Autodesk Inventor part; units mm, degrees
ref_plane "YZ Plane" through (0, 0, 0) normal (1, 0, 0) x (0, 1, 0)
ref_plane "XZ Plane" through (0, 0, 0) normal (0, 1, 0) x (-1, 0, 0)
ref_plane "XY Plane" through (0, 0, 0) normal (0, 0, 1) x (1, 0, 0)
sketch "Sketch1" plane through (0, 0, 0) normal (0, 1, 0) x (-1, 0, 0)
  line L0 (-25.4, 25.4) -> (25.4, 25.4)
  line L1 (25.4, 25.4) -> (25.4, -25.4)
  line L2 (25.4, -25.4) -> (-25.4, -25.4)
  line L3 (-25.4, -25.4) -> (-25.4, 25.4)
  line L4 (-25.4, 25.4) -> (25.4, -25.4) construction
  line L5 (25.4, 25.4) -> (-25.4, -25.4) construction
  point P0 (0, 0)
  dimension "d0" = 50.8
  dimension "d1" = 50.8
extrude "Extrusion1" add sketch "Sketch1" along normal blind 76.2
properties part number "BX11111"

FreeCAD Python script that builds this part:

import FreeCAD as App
import Part
import Sketcher
from FreeCAD import Vector
Q = App.Units.Quantity

doc = App.newDocument("Part")
params = doc.addObject("Spreadsheet::Sheet", "Params")
for row, (alias, value) in enumerate([
    ("sketch1_width", "2 in"),
    ("pad1_length", "3 in"),
], start=1):
    params.set(f"A{row}", alias)
    params.set(f"B{row}", "=" + value)
    params.setAlias(f"B{row}", alias)

body = doc.addObject("PartDesign::Body", "Body")

# Sketch on XZ plane
sketch1 = body.newObject("Sketcher::SketchObject", "Sketch")
sketch1.AttachmentSupport = (doc.getObject("XZ_Plane"), [""])
sketch1.MapMode = "FlatFace"
sketch1.addGeometry([
    Part.LineSegment(Vector(-25, 25, 0), Vector(25, 25, 0)),
    Part.LineSegment(Vector(25, 25, 0), Vector(25, -25, 0)),
    Part.LineSegment(Vector(25, -25, 0), Vector(-25, -25, 0)),
    Part.LineSegment(Vector(-25, -25, 0), Vector(-25, 25, 0)),
], False)
sketch1.addConstraint([
    Sketcher.Constraint("Coincident", 0, 2, 1, 1),
    Sketcher.Constraint("Coincident", 1, 2, 2, 1),
    Sketcher.Constraint("Coincident", 2, 2, 3, 1),
    Sketcher.Constraint("Coincident", 3, 2, 0, 1),
    Sketcher.Constraint("Horizontal", 0),
    Sketcher.Constraint("Vertical", 1),
    Sketcher.Constraint("Horizontal", 2),
    Sketcher.Constraint("Vertical", 3),
    Sketcher.Constraint("Symmetric", 0, 2, 2, 2, -1, 1),
    Sketcher.Constraint("Equal", 2, 1),
    Sketcher.Constraint("DistanceX", 0, 1, 0, 2, Q("2 in")),
])
sketch1.setExpression("Constraints[10]", "Params.sketch1_width")
pad1 = body.newObject("PartDesign::Pad", "Pad")
pad1.Profile = sketch1
pad1.setExpression("Length", "Params.pad1_length")
pad1.Reversed = True

doc.recompute()
